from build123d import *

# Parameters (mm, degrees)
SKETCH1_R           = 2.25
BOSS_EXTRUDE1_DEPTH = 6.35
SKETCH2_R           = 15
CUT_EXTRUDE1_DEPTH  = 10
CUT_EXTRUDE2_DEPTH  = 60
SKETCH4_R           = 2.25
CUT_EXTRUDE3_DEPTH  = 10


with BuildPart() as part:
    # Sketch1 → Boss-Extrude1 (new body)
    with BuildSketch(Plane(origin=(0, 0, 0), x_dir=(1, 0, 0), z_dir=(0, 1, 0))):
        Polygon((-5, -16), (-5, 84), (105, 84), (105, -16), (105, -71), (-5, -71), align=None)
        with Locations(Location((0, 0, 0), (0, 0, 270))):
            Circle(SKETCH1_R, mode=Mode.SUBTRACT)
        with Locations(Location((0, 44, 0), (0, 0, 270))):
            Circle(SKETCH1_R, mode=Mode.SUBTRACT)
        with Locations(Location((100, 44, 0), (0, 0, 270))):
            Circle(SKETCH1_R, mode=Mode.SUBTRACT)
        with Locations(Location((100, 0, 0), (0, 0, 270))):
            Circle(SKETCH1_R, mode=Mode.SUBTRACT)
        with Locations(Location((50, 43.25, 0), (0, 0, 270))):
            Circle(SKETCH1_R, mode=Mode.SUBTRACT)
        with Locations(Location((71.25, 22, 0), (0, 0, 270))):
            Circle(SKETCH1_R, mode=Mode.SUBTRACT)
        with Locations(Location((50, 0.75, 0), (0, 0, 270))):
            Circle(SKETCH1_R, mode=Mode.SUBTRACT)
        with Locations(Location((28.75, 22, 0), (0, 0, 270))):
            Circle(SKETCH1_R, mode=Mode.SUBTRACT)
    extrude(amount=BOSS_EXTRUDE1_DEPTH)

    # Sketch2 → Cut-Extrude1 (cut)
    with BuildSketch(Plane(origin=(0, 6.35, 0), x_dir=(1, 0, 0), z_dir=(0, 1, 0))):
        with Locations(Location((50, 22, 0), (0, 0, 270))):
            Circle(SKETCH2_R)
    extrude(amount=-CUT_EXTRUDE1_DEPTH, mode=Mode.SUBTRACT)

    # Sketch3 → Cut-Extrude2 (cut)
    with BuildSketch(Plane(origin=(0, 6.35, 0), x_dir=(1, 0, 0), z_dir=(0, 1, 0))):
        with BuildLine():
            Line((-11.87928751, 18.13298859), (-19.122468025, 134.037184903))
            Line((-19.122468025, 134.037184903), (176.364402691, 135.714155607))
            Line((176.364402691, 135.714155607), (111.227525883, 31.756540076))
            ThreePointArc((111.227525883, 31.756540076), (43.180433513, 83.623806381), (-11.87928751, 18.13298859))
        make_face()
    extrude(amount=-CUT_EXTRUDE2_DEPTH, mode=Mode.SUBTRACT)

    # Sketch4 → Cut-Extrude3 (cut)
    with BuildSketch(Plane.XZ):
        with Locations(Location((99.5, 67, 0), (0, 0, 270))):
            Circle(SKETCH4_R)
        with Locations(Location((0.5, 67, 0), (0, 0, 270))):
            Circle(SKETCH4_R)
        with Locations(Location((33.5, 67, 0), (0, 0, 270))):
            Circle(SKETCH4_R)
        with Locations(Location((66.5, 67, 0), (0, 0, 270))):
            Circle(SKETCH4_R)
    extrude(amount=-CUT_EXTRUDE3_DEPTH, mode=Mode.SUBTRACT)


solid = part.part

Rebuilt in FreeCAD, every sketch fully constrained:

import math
import FreeCAD as App
import Part
import Sketcher
Q = App.Units.Quantity

doc = App.newDocument("Part")
body = doc.addObject("PartDesign::Body", "Body")

# Sketch on XZ plane
sketch1 = body.newObject("Sketcher::SketchObject", "Sketch")
sketch1.AttachmentSupport = (doc.getObject("XZ_Plane"), [""])
sketch1.MapMode = "FlatFace"
sketch1.addGeometry([
    Part.LineSegment(App.Vector(-5, -84, 0), App.Vector(-5, 71, 0)),  # 0
    Part.LineSegment(App.Vector(-5, 71, 0), App.Vector(105, 71, 0)),  # 1
    Part.LineSegment(App.Vector(105, 71, 0), App.Vector(105, -84, 0)),  # 2
    Part.LineSegment(App.Vector(105, -84, 0), App.Vector(-5, -84, 0)),  # 3
    Part.Circle(App.Vector(100, 0, 0), App.Vector(0, 0, 1), 2.2),  # 4
    Part.Circle(App.Vector(50, -0.8, 0), App.Vector(0, 0, 1), 2.2),  # 5
    Part.Circle(App.Vector(0, 0, 0), App.Vector(0, 0, 1), 2.2),  # 6
    Part.Circle(App.Vector(71.2, -22, 0), App.Vector(0, 0, 1), 2.2),  # 7
    Part.Circle(App.Vector(100, -44, 0), App.Vector(0, 0, 1), 2.2),  # 8
    Part.Circle(App.Vector(28.8, -22, 0), App.Vector(0, 0, 1), 2.2),  # 9
    Part.Circle(App.Vector(50, -43.2, 0), App.Vector(0, 0, 1), 2.2),  # 10
    Part.Circle(App.Vector(0, -44, 0), App.Vector(0, 0, 1), 2.2),  # 11
], False)
sketch1.addConstraint([
    Sketcher.Constraint("Coincident", 0, 2, 1, 1),
    Sketcher.Constraint("Coincident", 1, 2, 2, 1),
    Sketcher.Constraint("Coincident", 2, 2, 3, 1),
    Sketcher.Constraint("Coincident", 3, 2, 0, 1),
    Sketcher.Constraint("Vertical", 0),
    Sketcher.Constraint("Horizontal", 1),
    Sketcher.Constraint("Vertical", 2),
    Sketcher.Constraint("Horizontal", 3),
    Sketcher.Constraint("Coincident", 6, 3, -1, 1),
    Sketcher.Constraint("Equal", 4, 5),
    Sketcher.Constraint("Equal", 5, 6),
    Sketcher.Constraint("Equal", 6, 7),
    Sketcher.Constraint("Equal", 7, 8),
    Sketcher.Constraint("Equal", 8, 9),
    Sketcher.Constraint("Equal", 9, 10),
    Sketcher.Constraint("Equal", 10, 11),
    Sketcher.Constraint("PointOnObject", 4, 3, -1),
    Sketcher.Constraint("PointOnObject", 11, 3, -2),
    Sketcher.Constraint("Horizontal", 7, 3, 9, 3),
    Sketcher.Constraint("Horizontal", 8, 3, 11, 3),
    Sketcher.Constraint("Vertical", 4, 3, 8, 3),
    Sketcher.Constraint("Vertical", 5, 3, 10, 3),
    Sketcher.Constraint("Diameter", 4, Q("4.5 mm")),
    Sketcher.Constraint("DistanceX", 1, 1, 1, 2, Q("110 mm")),
    Sketcher.Constraint("DistanceY", 0, 1, 0, 2, Q("155 mm")),
    Sketcher.Constraint("DistanceX", -1, 1, 4, 3, Q("100 mm")),
    Sketcher.Constraint("DistanceX", -1, 1, 5, 3, Q("50 mm")),
    Sketcher.Constraint("DistanceY", 7, 3, -1, 1, Q("22 mm")),
    Sketcher.Constraint("DistanceY", 8, 3, -1, 1, Q("44 mm")),
    Sketcher.Constraint("DistanceX", 0, 2, -1, 1, Q("5 mm")),
    Sketcher.Constraint("DistanceY", -1, 1, 0, 2, Q("71 mm")),
    Sketcher.Constraint("DistanceX", 9, 3, 7, 3, Q("42.5 mm")),
    Sketcher.Constraint("DistanceY", 10, 3, 5, 3, Q("42.5 mm")),
    Sketcher.Constraint("DistanceY", 5, 3, -1, 1, Q("0.75 mm")),
    Sketcher.Constraint("DistanceX", -1, 1, 7, 3, Q("71.25 mm")),
])
pad1 = body.newObject("PartDesign::Pad", "Pad")
pad1.Profile = sketch1
pad1.Length = 6.35
pad1.Reversed = True

# Sketch on XZ plane
sketch2 = body.newObject("Sketcher::SketchObject", "Sketch001")
sketch2.AttachmentSupport = (doc.getObject("XZ_Plane"), [""])
sketch2.MapMode = "FlatFace"
sketch2.AttachmentOffset = App.Placement(App.Vector(0, 0, -6.35), App.Rotation())
sketch2.addGeometry(Part.Circle(App.Vector(50, -22, 0), App.Vector(0, 0, 1), 15), False)
sketch2.addConstraint([
    Sketcher.Constraint("Diameter", 0, Q("30 mm")),
    Sketcher.Constraint("DistanceX", -1, 1, 0, 3, Q("50 mm")),
    Sketcher.Constraint("DistanceY", 0, 3, -1, 1, Q("22 mm")),
])
pocket1 = body.newObject("PartDesign::Pocket", "Pocket")
pocket1.Profile = sketch2
pocket1.Length = 10
pocket1.Reversed = True

# Sketch on XZ plane
sketch3 = body.newObject("Sketcher::SketchObject", "Sketch002")
sketch3.AttachmentSupport = (doc.getObject("XZ_Plane"), [""])
sketch3.MapMode = "FlatFace"
sketch3.AttachmentOffset = App.Placement(App.Vector(0, 0, -6.35), App.Rotation())
sketch3.addGeometry([
    Part.LineSegment(App.Vector(-19, -134, 0), App.Vector(-12, -18, 0)),
    Part.ArcOfCircle(Part.Circle(App.Vector(50, -22, 0), App.Vector(0, 0, 1), 62), math.radians(176), math.radians(351)),
    Part.LineSegment(App.Vector(111, -32, 0), App.Vector(176, -136, 0)),
    Part.LineSegment(App.Vector(176, -136, 0), App.Vector(-19, -134, 0)),
], False)
sketch3.addConstraint([
    Sketcher.Constraint("Tangent", 0, 2, 1, 1),
    Sketcher.Constraint("Coincident", 1, 2, 2, 1),
    Sketcher.Constraint("Coincident", 2, 2, 3, 1),
    Sketcher.Constraint("Coincident", 3, 2, 0, 1),
    Sketcher.Constraint("Radius", 1, Q("62 mm")),
    Sketcher.Constraint("DistanceX", -1, 1, 1, 3, Q("50 mm")),
    Sketcher.Constraint("DistanceY", 1, 3, -1, 1, Q("22 mm")),
    Sketcher.Constraint("Distance", 0, Q("116.130299 mm")),
    Sketcher.Constraint("DistanceY", 0, 2, -1, 1, Q("18.132989 mm")),
    Sketcher.Constraint("DistanceY", 1, 2, -1, 1, Q("31.75654 mm")),
    Sketcher.Constraint("DistanceX", 0, 2, 2, 2, Q("188.24369 mm")),
    Sketcher.Constraint("DistanceY", 2, 2, 3, 2, Q("1.676971 mm")),
])
pocket2 = body.newObject("PartDesign::Pocket", "Pocket001")
pocket2.Profile = sketch3
pocket2.Length = 60
pocket2.Reversed = True

# Sketch on XZ plane
sketch4 = body.newObject("Sketcher::SketchObject", "Sketch003")
sketch4.AttachmentSupport = (doc.getObject("XZ_Plane"), [""])
sketch4.MapMode = "FlatFace"
sketch4.addGeometry([
    Part.Circle(App.Vector(99.5, 67, 0), App.Vector(0, 0, 1), 2.2),
    Part.Circle(App.Vector(0.5, 67, 0), App.Vector(0, 0, 1), 2.2),
    Part.Circle(App.Vector(33.5, 67, 0), App.Vector(0, 0, 1), 2.2),
    Part.Circle(App.Vector(66.5, 67, 0), App.Vector(0, 0, 1), 2.2),
], False)
sketch4.addConstraint([
    Sketcher.Constraint("Equal", 0, 1),
    Sketcher.Constraint("Equal", 1, 2),
    Sketcher.Constraint("Equal", 2, 3),
    Sketcher.Constraint("Horizontal", 0, 3, 1, 3),
    Sketcher.Constraint("Horizontal", 1, 3, 2, 3),
    Sketcher.Constraint("Horizontal", 2, 3, 3, 3),
    Sketcher.Constraint("Diameter", 0, Q("4.5 mm")),
    Sketcher.Constraint("DistanceY", -1, 1, 0, 3, Q("67 mm")),
    Sketcher.Constraint("DistanceX", 1, 3, 0, 3, Q("99 mm")),
    Sketcher.Constraint("DistanceX", 1, 3, 2, 3, Q("33 mm")),
    Sketcher.Constraint("DistanceX", 3, 3, 0, 3, Q("33 mm")),
    Sketcher.Constraint("DistanceX", -1, 1, 0, 3, Q("99.5 mm")),
])
pocket3 = body.newObject("PartDesign::Pocket", "Pocket002")
pocket3.Profile = sketch4
pocket3.Length = 10

doc.recompute()
